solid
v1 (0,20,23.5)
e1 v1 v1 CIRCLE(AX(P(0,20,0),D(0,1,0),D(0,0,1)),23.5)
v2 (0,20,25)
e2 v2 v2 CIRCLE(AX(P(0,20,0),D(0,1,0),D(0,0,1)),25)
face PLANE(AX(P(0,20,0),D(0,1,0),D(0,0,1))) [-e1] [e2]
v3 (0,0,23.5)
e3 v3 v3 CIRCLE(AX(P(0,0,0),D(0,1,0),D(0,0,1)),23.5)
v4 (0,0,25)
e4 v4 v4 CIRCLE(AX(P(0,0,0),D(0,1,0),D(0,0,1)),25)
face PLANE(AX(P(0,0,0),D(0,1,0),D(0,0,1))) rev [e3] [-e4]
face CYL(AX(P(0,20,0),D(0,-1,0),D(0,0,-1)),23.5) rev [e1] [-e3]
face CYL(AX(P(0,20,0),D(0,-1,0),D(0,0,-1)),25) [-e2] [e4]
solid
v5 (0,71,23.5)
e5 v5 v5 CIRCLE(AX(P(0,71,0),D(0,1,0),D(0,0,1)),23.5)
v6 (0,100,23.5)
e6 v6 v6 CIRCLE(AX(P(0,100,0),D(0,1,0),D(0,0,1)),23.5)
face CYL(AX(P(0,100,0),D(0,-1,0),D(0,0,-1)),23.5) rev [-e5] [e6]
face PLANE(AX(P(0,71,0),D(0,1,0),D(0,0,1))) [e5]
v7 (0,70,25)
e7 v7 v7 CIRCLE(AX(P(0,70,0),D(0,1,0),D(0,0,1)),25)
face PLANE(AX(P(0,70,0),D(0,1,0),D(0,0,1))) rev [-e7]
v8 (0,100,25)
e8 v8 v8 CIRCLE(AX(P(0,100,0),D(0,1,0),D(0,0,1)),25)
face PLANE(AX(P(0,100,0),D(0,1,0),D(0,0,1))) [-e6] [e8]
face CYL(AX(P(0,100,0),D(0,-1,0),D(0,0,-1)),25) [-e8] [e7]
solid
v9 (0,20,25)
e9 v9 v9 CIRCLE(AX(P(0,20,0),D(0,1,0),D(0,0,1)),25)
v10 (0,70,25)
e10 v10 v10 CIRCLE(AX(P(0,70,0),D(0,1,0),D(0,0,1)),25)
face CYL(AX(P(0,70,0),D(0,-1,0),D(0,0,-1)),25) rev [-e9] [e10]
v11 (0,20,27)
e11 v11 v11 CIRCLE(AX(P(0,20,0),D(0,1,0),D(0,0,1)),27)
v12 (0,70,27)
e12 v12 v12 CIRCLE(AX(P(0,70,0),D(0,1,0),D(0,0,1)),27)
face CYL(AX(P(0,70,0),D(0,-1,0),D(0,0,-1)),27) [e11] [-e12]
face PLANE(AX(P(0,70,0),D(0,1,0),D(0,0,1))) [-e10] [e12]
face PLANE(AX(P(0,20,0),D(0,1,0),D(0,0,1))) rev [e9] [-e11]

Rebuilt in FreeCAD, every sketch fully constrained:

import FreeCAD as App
import Part
import Sketcher

V = App.Vector
Q = App.Units.Quantity

doc = App.newDocument("Part")
body = doc.addObject("PartDesign::Body", "Body")

# Sketch on XZ plane
sketch1 = body.newObject("Sketcher::SketchObject", "Sketch")
sketch1.AttachmentSupport = (doc.getObject("XZ_Plane"), [""])
sketch1.MapMode = "FlatFace"
sketch1.addGeometry([
    Part.Circle(V(0, 0, 0), V(0, 0, 1), 25),
    Part.Circle(V(0, 0, 0), V(0, 0, 1), 23.5),
], False)
sketch1.addConstraint([
    Sketcher.Constraint("Coincident", 0, 3, -1, 1),
    Sketcher.Constraint("Coincident", 1, 3, -1, 1),
    Sketcher.Constraint("Diameter", 0, Q("50 mm")),
    Sketcher.Constraint("Diameter", 1, Q("47 mm")),
])
pad1 = body.newObject("PartDesign::Pad", "Pad")
pad1.Profile = sketch1
pad1.Length = 20
pad1.Reversed = True
body2 = doc.addObject("PartDesign::Body", "Body001")

# Sketch on XZ plane
sketch2 = body2.newObject("Sketcher::SketchObject", "Sketch001")
sketch2.AttachmentSupport = (doc.getObject("XZ_Plane001"), [""])
sketch2.MapMode = "FlatFace"
sketch2.AttachmentOffset = App.Placement(V(0, 0, -20), App.Rotation())
sketch2.addGeometry([
    Part.Circle(V(0, 0, 0), V(0, 0, 1), 27),
    Part.Circle(V(0, 0, 0), V(0, 0, 1), 25),
], False)
sketch2.addConstraint([
    Sketcher.Constraint("Coincident", 0, 3, -1, 1),
    Sketcher.Constraint("Coincident", 1, 3, -1, 1),
    Sketcher.Constraint("Diameter", 0, Q("54 mm")),
    Sketcher.Constraint("Diameter", 1, Q("50 mm")),
])
pad2 = body2.newObject("PartDesign::Pad", "Pad001")
pad2.Profile = sketch2
pad2.Length = 50
pad2.Reversed = True
body3 = doc.addObject("PartDesign::Body", "Body002")

# Sketch on XZ plane
sketch3 = body3.newObject("Sketcher::SketchObject", "Sketch002")
sketch3.AttachmentSupport = (doc.getObject("XZ_Plane002"), [""])
sketch3.MapMode = "FlatFace"
sketch3.AttachmentOffset = App.Placement(V(0, 0, -70), App.Rotation())
sketch3.addGeometry([
    Part.Circle(V(0, 0, 0), V(0, 0, 1), 25),
    Part.Circle(V(0, 0, 0), V(0, 0, 1), 23.5),
], False)
sketch3.addConstraint([
    Sketcher.Constraint("Coincident", 0, 3, -1, 1),
    Sketcher.Constraint("Coincident", 1, 3, -1, 1),
    Sketcher.Constraint("Diameter", 0, Q("50 mm")),
    Sketcher.Constraint("Diameter", 1, Q("47 mm")),
])
pad3 = body3.newObject("PartDesign::Pad", "Pad002")
pad3.Profile = sketch3
pad3.Length = 30
pad3.Reversed = True

# Sketch on XZ plane
sketch4 = body3.newObject("Sketcher::SketchObject", "Sketch003")
sketch4.AttachmentSupport = (doc.getObject("XZ_Plane002"), [""])
sketch4.MapMode = "FlatFace"
sketch4.AttachmentOffset = App.Placement(V(0, 0, -70), App.Rotation())
sketch4.addGeometry(Part.Circle(V(0, 0, 0), V(0, 0, 1), 24), False)
sketch4.addConstraint([
    Sketcher.Constraint("Coincident", 0, 3, -1, 1),
    Sketcher.Constraint("Diameter", 0, Q("48 mm")),
])
pad4 = body3.newObject("PartDesign::Pad", "Pad003")
pad4.Profile = sketch4
pad4.Length = 1
pad4.Reversed = True

doc.recompute()
